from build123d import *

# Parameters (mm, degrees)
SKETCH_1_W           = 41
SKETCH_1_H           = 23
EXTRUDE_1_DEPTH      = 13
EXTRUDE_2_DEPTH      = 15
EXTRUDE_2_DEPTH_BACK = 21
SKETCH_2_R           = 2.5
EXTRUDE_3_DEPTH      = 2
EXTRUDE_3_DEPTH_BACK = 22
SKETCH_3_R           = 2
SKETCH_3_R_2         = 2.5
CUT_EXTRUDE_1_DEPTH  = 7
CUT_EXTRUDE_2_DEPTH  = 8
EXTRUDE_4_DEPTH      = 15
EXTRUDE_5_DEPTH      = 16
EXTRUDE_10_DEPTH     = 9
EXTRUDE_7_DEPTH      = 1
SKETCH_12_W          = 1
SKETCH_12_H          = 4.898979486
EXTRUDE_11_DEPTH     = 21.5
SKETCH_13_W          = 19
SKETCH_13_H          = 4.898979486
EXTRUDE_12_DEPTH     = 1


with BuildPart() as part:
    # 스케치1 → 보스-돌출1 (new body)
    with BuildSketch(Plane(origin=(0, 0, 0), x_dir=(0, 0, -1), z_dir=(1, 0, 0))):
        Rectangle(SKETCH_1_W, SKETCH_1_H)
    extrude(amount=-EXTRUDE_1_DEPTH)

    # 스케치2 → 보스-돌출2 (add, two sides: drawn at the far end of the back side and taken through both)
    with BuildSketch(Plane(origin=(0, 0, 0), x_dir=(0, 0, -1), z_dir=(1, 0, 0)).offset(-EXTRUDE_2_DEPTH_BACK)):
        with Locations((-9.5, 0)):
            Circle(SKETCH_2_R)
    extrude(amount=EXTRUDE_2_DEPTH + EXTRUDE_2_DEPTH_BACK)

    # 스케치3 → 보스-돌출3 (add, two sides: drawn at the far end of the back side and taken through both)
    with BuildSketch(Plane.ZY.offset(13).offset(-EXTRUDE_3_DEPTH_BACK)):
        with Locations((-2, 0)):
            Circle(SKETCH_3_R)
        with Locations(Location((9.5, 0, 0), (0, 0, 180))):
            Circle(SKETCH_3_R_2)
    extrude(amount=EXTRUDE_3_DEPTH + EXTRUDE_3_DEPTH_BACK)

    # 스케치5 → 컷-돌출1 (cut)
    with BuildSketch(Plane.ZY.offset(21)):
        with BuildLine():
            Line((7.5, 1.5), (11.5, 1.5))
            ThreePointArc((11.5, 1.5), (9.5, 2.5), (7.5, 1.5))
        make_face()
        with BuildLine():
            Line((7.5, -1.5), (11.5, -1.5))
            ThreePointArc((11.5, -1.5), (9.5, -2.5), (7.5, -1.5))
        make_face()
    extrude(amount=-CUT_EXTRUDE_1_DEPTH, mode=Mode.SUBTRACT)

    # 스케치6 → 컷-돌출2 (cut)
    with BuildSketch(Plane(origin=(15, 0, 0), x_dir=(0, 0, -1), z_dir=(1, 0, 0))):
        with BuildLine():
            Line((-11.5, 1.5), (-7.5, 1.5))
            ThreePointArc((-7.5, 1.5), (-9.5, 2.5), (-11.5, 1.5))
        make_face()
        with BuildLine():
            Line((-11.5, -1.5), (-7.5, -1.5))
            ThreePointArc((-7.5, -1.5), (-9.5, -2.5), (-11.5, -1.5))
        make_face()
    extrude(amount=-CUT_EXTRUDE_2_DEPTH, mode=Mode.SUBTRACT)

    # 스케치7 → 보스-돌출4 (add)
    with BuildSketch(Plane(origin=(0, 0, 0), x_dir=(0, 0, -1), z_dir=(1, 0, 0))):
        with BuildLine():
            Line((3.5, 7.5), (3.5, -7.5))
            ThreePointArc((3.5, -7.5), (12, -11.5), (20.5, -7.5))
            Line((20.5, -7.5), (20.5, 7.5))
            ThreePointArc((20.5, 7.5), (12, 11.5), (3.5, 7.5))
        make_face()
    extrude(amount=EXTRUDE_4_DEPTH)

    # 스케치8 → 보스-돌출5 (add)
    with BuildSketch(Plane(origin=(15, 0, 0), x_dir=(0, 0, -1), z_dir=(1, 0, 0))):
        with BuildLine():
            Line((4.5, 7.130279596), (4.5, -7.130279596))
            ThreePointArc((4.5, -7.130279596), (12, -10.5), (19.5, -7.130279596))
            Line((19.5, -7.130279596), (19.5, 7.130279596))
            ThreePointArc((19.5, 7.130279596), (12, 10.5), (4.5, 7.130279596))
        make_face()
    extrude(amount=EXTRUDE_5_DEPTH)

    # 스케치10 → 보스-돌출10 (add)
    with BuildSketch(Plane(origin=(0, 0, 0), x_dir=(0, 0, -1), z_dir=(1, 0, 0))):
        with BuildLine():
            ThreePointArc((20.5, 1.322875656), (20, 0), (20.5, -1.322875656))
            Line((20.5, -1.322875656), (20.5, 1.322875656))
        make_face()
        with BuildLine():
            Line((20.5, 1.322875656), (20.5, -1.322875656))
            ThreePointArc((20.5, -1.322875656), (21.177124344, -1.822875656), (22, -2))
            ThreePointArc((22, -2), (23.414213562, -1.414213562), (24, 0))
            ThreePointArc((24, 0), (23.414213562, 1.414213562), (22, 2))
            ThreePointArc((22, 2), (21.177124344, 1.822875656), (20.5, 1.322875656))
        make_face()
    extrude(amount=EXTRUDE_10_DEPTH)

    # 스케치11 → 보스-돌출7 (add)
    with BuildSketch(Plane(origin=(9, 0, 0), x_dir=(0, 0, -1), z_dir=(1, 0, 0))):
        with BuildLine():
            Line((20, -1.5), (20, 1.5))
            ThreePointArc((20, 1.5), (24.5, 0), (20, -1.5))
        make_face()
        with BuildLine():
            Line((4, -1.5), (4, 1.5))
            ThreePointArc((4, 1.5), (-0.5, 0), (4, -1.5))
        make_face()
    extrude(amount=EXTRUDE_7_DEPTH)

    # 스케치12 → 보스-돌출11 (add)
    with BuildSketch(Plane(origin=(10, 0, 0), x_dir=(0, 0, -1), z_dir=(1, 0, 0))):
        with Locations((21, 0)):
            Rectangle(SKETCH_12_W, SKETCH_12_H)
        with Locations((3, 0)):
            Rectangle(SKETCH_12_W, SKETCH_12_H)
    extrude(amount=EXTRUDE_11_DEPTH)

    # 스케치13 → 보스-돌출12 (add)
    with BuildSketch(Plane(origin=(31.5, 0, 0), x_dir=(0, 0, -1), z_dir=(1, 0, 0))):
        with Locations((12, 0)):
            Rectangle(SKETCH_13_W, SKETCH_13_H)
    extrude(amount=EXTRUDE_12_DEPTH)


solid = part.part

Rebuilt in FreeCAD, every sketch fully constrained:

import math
import FreeCAD as App
import Part
import Sketcher
from FreeCAD import Vector
Q = App.Units.Quantity

doc = App.newDocument("Part")
body = doc.addObject("PartDesign::Body", "Body")

sketch1 = body.newObject("Sketcher::SketchObject", "Sketch")
sketch1.AttachmentSupport = (doc.getObject("YZ_Plane"), [""])
sketch1.MapMode = "FlatFace"
sketch1.addGeometry(Part.LineSegment(Vector(11.5, 20.5, 0), Vector(-11.5, 20.5, 0)), False)
sketch1.addGeometry(Part.LineSegment(Vector(-11.5, 20.5, 0), Vector(-11.5, -20.5, 0)), False)
sketch1.addGeometry(Part.LineSegment(Vector(-11.5, -20.5, 0), Vector(11.5, -20.5, 0)), False)
sketch1.addGeometry(Part.LineSegment(Vector(11.5, -20.5, 0), Vector(11.5, 20.5, 0)), False)
sketch1.addConstraint(Sketcher.Constraint("Coincident", 0, 2, 1, 1))
sketch1.addConstraint(Sketcher.Constraint("Coincident", 1, 2, 2, 1))
sketch1.addConstraint(Sketcher.Constraint("Coincident", 2, 2, 3, 1))
sketch1.addConstraint(Sketcher.Constraint("Coincident", 3, 2, 0, 1))
sketch1.addConstraint(Sketcher.Constraint("Horizontal", 0))
sketch1.addConstraint(Sketcher.Constraint("Vertical", 1))
sketch1.addConstraint(Sketcher.Constraint("Horizontal", 2))
sketch1.addConstraint(Sketcher.Constraint("Vertical", 3))
sketch1.addConstraint(Sketcher.Constraint("Symmetric", 0, 2, 2, 2, -1, 1))
sketch1.addConstraint(Sketcher.Constraint("DistanceX", 0, 2, 0, 1, Q("23 mm")))
sketch1.addConstraint(Sketcher.Constraint("DistanceY", 1, 2, 1, 1, Q("41 mm")))
pad1 = body.newObject("PartDesign::Pad", "Pad")
pad1.Profile = sketch1
pad1.Length = 13
pad1.Reversed = True

sketch2 = body.newObject("Sketcher::SketchObject", "Sketch001")
sketch2.AttachmentSupport = (doc.getObject("YZ_Plane"), [""])
sketch2.MapMode = "FlatFace"
sketch2.addGeometry(Part.Circle(Vector(0, 9.5, 0), Vector(0, 0, 1), 2.5), False)
sketch2.addConstraint(Sketcher.Constraint("PointOnObject", 0, 3, -2))
sketch2.addConstraint(Sketcher.Constraint("Diameter", 0, Q("5 mm")))
sketch2.addConstraint(Sketcher.Constraint("DistanceY", -1, 1, 0, 3, Q("9.5 mm")))
pad2 = body.newObject("PartDesign::Pad", "Pad001")
pad2.Profile = sketch2
pad2.Type = "TwoLengths"
pad2.Length = 15
pad2.Length2 = 21

sketch3 = body.newObject("Sketcher::SketchObject", "Sketch002")
sketch3.AttachmentSupport = (doc.getObject("YZ_Plane"), [""])
sketch3.MapMode = "FlatFace"
sketch3.AttachmentOffset = App.Placement(Vector(0, 0, -13), App.Rotation())
sketch3.addGeometry(Part.Circle(Vector(0, -2, 0), Vector(0, 0, 1), 2), False)
sketch3.addGeometry(Part.Circle(Vector(0, 9.5, 0), Vector(0, 0, 1), 2.5), False)
sketch3.addConstraint(Sketcher.Constraint("PointOnObject", 0, 3, -2))
sketch3.addConstraint(Sketcher.Constraint("PointOnObject", 1, 3, -2))
sketch3.addConstraint(Sketcher.Constraint("Diameter", 0, Q("4 mm")))
sketch3.addConstraint(Sketcher.Constraint("Diameter", 1, Q("5 mm")))
sketch3.addConstraint(Sketcher.Constraint("DistanceY", 0, 3, -1, 1, Q("2 mm")))
sketch3.addConstraint(Sketcher.Constraint("DistanceY", -1, 1, 1, 3, Q("9.5 mm")))
pad3 = body.newObject("PartDesign::Pad", "Pad002")
pad3.Profile = sketch3
pad3.Type = "TwoLengths"
pad3.Length = 2
pad3.Length2 = 22
pad3.Reversed = True

sketch4 = body.newObject("Sketcher::SketchObject", "Sketch003")
sketch4.AttachmentSupport = (doc.getObject("YZ_Plane"), [""])
sketch4.MapMode = "FlatFace"
sketch4.AttachmentOffset = App.Placement(Vector(0, 0, -21), App.Rotation())
sketch4.addGeometry(Part.LineSegment(Vector(1.5, 7.5, 0), Vector(1.5, 11.5, 0)), False)
sketch4.addGeometry(Part.ArcOfCircle(Part.Circle(Vector(0, 9.5, 0), Vector(0, 0, 1), 2.5), math.radians(-53.130102), math.radians(53.130102)), False)
sketch4.addGeometry(Part.LineSegment(Vector(-1.5, 11.5, 0), Vector(-1.5, 7.5, 0)), False)
sketch4.addGeometry(Part.ArcOfCircle(Part.Circle(Vector(0, 9.5, 0), Vector(0, 0, 1), 2.5), math.radians(126.869898), math.radians(233.130102)), False)
sketch4.addConstraint(Sketcher.Constraint("Coincident", 0, 1, 1, 1))
sketch4.addConstraint(Sketcher.Constraint("Coincident", 1, 2, 0, 2))
sketch4.addConstraint(Sketcher.Constraint("Coincident", 2, 1, 3, 1))
sketch4.addConstraint(Sketcher.Constraint("Coincident", 3, 2, 2, 2))
sketch4.addConstraint(Sketcher.Constraint("Vertical", 0))
sketch4.addConstraint(Sketcher.Constraint("Vertical", 2))
sketch4.addConstraint(Sketcher.Constraint("Coincident", 3, 3, 1, 3))
sketch4.addConstraint(Sketcher.Constraint("Equal", 1, 3))
sketch4.addConstraint(Sketcher.Constraint("Symmetric", 1, 2, 2, 1, -2))
sketch4.addConstraint(Sketcher.Constraint("Radius", 1, Q("2.5 mm")))
sketch4.addConstraint(Sketcher.Constraint("DistanceY", 0, 1, 0, 2, Q("4 mm")))
sketch4.addConstraint(Sketcher.Constraint("DistanceY", -1, 1, 1, 3, Q("9.5 mm")))
pocket1 = body.newObject("PartDesign::Pocket", "Pocket")
pocket1.Profile = sketch4
pocket1.Length = 7
pocket1.Reversed = True

sketch5 = body.newObject("Sketcher::SketchObject", "Sketch004")
sketch5.AttachmentSupport = (doc.getObject("YZ_Plane"), [""])
sketch5.MapMode = "FlatFace"
sketch5.AttachmentOffset = App.Placement(Vector(0, 0, 15), App.Rotation())
sketch5.addGeometry(Part.LineSegment(Vector(1.5, 11.5, 0), Vector(1.5, 7.5, 0)), False)
sketch5.addGeometry(Part.ArcOfCircle(Part.Circle(Vector(0, 9.5, 0), Vector(0, 0, 1), 2.5), math.radians(-53.130102), math.radians(53.130102)), False)
sketch5.addGeometry(Part.LineSegment(Vector(-1.5, 7.5, 0), Vector(-1.5, 11.5, 0)), False)
sketch5.addGeometry(Part.ArcOfCircle(Part.Circle(Vector(0, 9.5, 0), Vector(0, 0, 1), 2.5), math.radians(126.869898), math.radians(233.130102)), False)
sketch5.addConstraint(Sketcher.Constraint("Coincident", 0, 1, 1, 2))
sketch5.addConstraint(Sketcher.Constraint("Coincident", 1, 1, 0, 2))
sketch5.addConstraint(Sketcher.Constraint("Coincident", 2, 1, 3, 2))
sketch5.addConstraint(Sketcher.Constraint("Coincident", 3, 1, 2, 2))
sketch5.addConstraint(Sketcher.Constraint("Vertical", 0))
sketch5.addConstraint(Sketcher.Constraint("Vertical", 2))
sketch5.addConstraint(Sketcher.Constraint("Coincident", 3, 3, 1, 3))
sketch5.addConstraint(Sketcher.Constraint("Equal", 1, 3))
sketch5.addConstraint(Sketcher.Constraint("Symmetric", 1, 1, 2, 1, -2))
sketch5.addConstraint(Sketcher.Constraint("Radius", 1, Q("2.5 mm")))
sketch5.addConstraint(Sketcher.Constraint("DistanceY", 0, 2, 0, 1, Q("4 mm")))
sketch5.addConstraint(Sketcher.Constraint("DistanceY", -1, 1, 1, 3, Q("9.5 mm")))
pocket2 = body.newObject("PartDesign::Pocket", "Pocket001")
pocket2.Profile = sketch5
pocket2.Length = 8

sketch6 = body.newObject("Sketcher::SketchObject", "Sketch005")
sketch6.AttachmentSupport = (doc.getObject("YZ_Plane"), [""])
sketch6.MapMode = "FlatFace"
sketch6.addGeometry(Part.LineSegment(Vector(7.5, -3.5, 0), Vector(-7.5, -3.5, 0)), False)
sketch6.addGeometry(Part.ArcOfCircle(Part.Circle(Vector(-0.46875, -12, 0), Vector(0, 0, 1), 11.03125), math.radians(129.597753), math.radians(230.402247)), False)
sketch6.addGeometry(Part.LineSegment(Vector(-7.5, -20.5, 0), Vector(7.5, -20.5, 0)), False)
sketch6.addGeometry(Part.ArcOfCircle(Part.Circle(Vector(0.46875, -12, 0), Vector(0, 0, 1), 11.03125), math.radians(-50.402247), math.radians(50.402247)), False)
sketch6.addConstraint(Sketcher.Constraint("Coincident", 0, 2, 1, 1))
sketch6.addConstraint(Sketcher.Constraint("Coincident", 1, 2, 2, 1))
sketch6.addConstraint(Sketcher.Constraint("Coincident", 2, 2, 3, 1))
sketch6.addConstraint(Sketcher.Constraint("Coincident", 3, 2, 0, 1))
sketch6.addConstraint(Sketcher.Constraint("Horizontal", 0))
sketch6.addConstraint(Sketcher.Constraint("Horizontal", 2))
sketch6.addConstraint(Sketcher.Constraint("Equal", 1, 3))
sketch6.addConstraint(Sketcher.Constraint("Symmetric", 1, 3, 3, 3, -2))
sketch6.addConstraint(Sketcher.Constraint("Vertical", 0, 2, 1, 2))
sketch6.addConstraint(Sketcher.Constraint("DistanceX", 0, 2, 0, 1, Q("15 mm")))
sketch6.addConstraint(Sketcher.Constraint("DistanceY", 1, 3, -1, 1, Q("12 mm")))
sketch6.addConstraint(Sketcher.Constraint("DistanceY", 1, 2, 0, 2, Q("17 mm")))
sketch6.addConstraint(Sketcher.Constraint("Radius", 1, Q("11.03125 mm")))
pad4 = body.newObject("PartDesign::Pad", "Pad003")
pad4.Profile = sketch6
pad4.Length = 15

sketch7 = body.newObject("Sketcher::SketchObject", "Sketch006")
sketch7.AttachmentSupport = (doc.getObject("YZ_Plane"), [""])
sketch7.MapMode = "FlatFace"
sketch7.AttachmentOffset = App.Placement(Vector(0, 0, 15), App.Rotation())
sketch7.addGeometry(Part.LineSegment(Vector(7.13028, -4.5, 0), Vector(-7.13028, -4.5, 0)), False)
sketch7.addGeometry(Part.ArcOfCircle(Part.Circle(Vector(-0.46875, -12, 0), Vector(0, 0, 1), 10.03125), math.radians(131.611609), math.radians(228.388391)), False)
sketch7.addGeometry(Part.LineSegment(Vector(-7.13028, -19.5, 0), Vector(7.13028, -19.5, 0)), False)
sketch7.addGeometry(Part.ArcOfCircle(Part.Circle(Vector(0.46875, -12, 0), Vector(0, 0, 1), 10.03125), math.radians(-48.388391), math.radians(48.388391)), False)
sketch7.addConstraint(Sketcher.Constraint("Coincident", 0, 2, 1, 1))
sketch7.addConstraint(Sketcher.Constraint("Coincident", 1, 2, 2, 1))
sketch7.addConstraint(Sketcher.Constraint("Coincident", 2, 2, 3, 1))
sketch7.addConstraint(Sketcher.Constraint("Coincident", 3, 2, 0, 1))
sketch7.addConstraint(Sketcher.Constraint("Horizontal", 0))
sketch7.addConstraint(Sketcher.Constraint("Horizontal", 2))
sketch7.addConstraint(Sketcher.Constraint("Equal", 1, 3))
sketch7.addConstraint(Sketcher.Constraint("Symmetric", 1, 3, 3, 3, -2))
sketch7.addConstraint(Sketcher.Constraint("Vertical", 0, 2, 1, 2))
sketch7.addConstraint(Sketcher.Constraint("DistanceY", 1, 3, -1, 1, Q("12 mm")))
sketch7.addConstraint(Sketcher.Constraint("DistanceY", 1, 2, 0, 2, Q("15 mm")))
sketch7.addConstraint(Sketcher.Constraint("Radius", 1, Q("10.03125 mm")))
sketch7.addConstraint(Sketcher.Constraint("DistanceX", 0, 2, 0, 1, Q("14.260559 mm")))
pad5 = body.newObject("PartDesign::Pad", "Pad004")
pad5.Profile = sketch7
pad5.Length = 16

sketch8 = body.newObject("Sketcher::SketchObject", "Sketch007")
sketch8.AttachmentSupport = (doc.getObject("YZ_Plane"), [""])
sketch8.MapMode = "FlatFace"
sketch8.addGeometry(Part.ArcOfCircle(Part.Circle(Vector(0, -22, 0), Vector(0, 0, 1), 2), math.radians(48.590378), math.radians(131.409622)), False)
sketch8.addGeometry(Part.ArcOfCircle(Part.Circle(Vector(0, -22, 0), Vector(0, 0, 1), 2), math.radians(131.409622), math.radians(180)), False)
sketch8.addGeometry(Part.ArcOfCircle(Part.Circle(Vector(0, -22, 0), Vector(0, 0, 1), 2), math.radians(-180), math.radians(-90)), False)
sketch8.addGeometry(Part.ArcOfCircle(Part.Circle(Vector(0, -22, 0), Vector(0, 0, 1), 2), math.radians(-90), math.radians(0)), False)
sketch8.addGeometry(Part.ArcOfCircle(Part.Circle(Vector(0, -22, 0), Vector(0, 0, 1), 2), math.radians(0), math.radians(48.590378)), False)
sketch8.addConstraint(Sketcher.Constraint("Tangent", 0, 2, 1, 1))
sketch8.addConstraint(Sketcher.Constraint("Tangent", 1, 2, 2, 1))
sketch8.addConstraint(Sketcher.Constraint("Tangent", 2, 2, 3, 1))
sketch8.addConstraint(Sketcher.Constraint("Tangent", 3, 2, 4, 1))
sketch8.addConstraint(Sketcher.Constraint("Tangent", 4, 2, 0, 1))
sketch8.addConstraint(Sketcher.Constraint("Coincident", 2, 3, 0, 3))
sketch8.addConstraint(Sketcher.Constraint("Symmetric", 1, 2, 3, 2, -2))
sketch8.addConstraint(Sketcher.Constraint("PointOnObject", 2, 2, -2))
sketch8.addConstraint(Sketcher.Constraint("Horizontal", 4, 3, 1, 2))
sketch8.addConstraint(Sketcher.Constraint("Horizontal", 0, 2, 4, 2))
sketch8.addConstraint(Sketcher.Constraint("Radius", 0, Q("2 mm")))
sketch8.addConstraint(Sketcher.Constraint("DistanceY", 0, 3, -1, 1, Q("22 mm")))
sketch8.addConstraint(Sketcher.Constraint("DistanceY", 0, 2, -1, 1, Q("20.5 mm")))
pad6 = body.newObject("PartDesign::Pad", "Pad005")
pad6.Profile = sketch8
pad6.Length = 9

sketch9 = body.newObject("Sketcher::SketchObject", "Sketch008")
sketch9.AttachmentSupport = (doc.getObject("YZ_Plane"), [""])
sketch9.MapMode = "FlatFace"
sketch9.AttachmentOffset = App.Placement(Vector(0, 0, 9), App.Rotation())
sketch9.addGeometry(Part.LineSegment(Vector(1.5, -20, 0), Vector(-1.5, -20, 0)), False)
sketch9.addGeometry(Part.ArcOfCircle(Part.Circle(Vector(0, -22, 0), Vector(0, 0, 1), 2.5), math.radians(126.869898), math.radians(413.130102)), False)
sketch9.addGeometry(Part.LineSegment(Vector(-1.5, -4, 0), Vector(1.5, -4, 0)), False)
sketch9.addGeometry(Part.ArcOfCircle(Part.Circle(Vector(0, -2, 0), Vector(0, 0, 1), 2.5), math.radians(-53.130102), math.radians(233.130102)), False)
sketch9.addConstraint(Sketcher.Constraint("Coincident", 0, 1, 1, 2))
sketch9.addConstraint(Sketcher.Constraint("Coincident", 1, 1, 0, 2))
sketch9.addConstraint(Sketcher.Constraint("Coincident", 2, 1, 3, 2))
sketch9.addConstraint(Sketcher.Constraint("Coincident", 3, 1, 2, 2))
sketch9.addConstraint(Sketcher.Constraint("Horizontal", 0))
sketch9.addConstraint(Sketcher.Constraint("Horizontal", 2))
sketch9.addConstraint(Sketcher.Constraint("Equal", 1, 3))
sketch9.addConstraint(Sketcher.Constraint("PointOnObject", 1, 3, -2))
sketch9.addConstraint(Sketcher.Constraint("PointOnObject", 3, 3, -2))
sketch9.addConstraint(Sketcher.Constraint("Vertical", 1, 1, 2, 1))
sketch9.addConstraint(Sketcher.Constraint("Radius", 1, Q("2.5 mm")))
sketch9.addConstraint(Sketcher.Constraint("DistanceX", 0, 2, 0, 1, Q("3 mm")))
sketch9.addConstraint(Sketcher.Constraint("DistanceY", 1, 3, -1, 1, Q("22 mm")))
sketch9.addConstraint(Sketcher.Constraint("DistanceY", 3, 3, -1, 1, Q("2 mm")))
pad7 = body.newObject("PartDesign::Pad", "Pad006")
pad7.Profile = sketch9
pad7.Length = 1

sketch10 = body.newObject("Sketcher::SketchObject", "Sketch009")
sketch10.AttachmentSupport = (doc.getObject("YZ_Plane"), [""])
sketch10.MapMode = "FlatFace"
sketch10.AttachmentOffset = App.Placement(Vector(0, 0, 10), App.Rotation())
sketch10.addGeometry(Part.LineSegment(Vector(2.44949, -20.5, 0), Vector(-2.44949, -20.5, 0)), False)
sketch10.addGeometry(Part.LineSegment(Vector(-2.44949, -20.5, 0), Vector(-2.44949, -21.5, 0)), False)
sketch10.addGeometry(Part.LineSegment(Vector(-2.44949, -21.5, 0), Vector(2.44949, -21.5, 0)), False)
sketch10.addGeometry(Part.LineSegment(Vector(2.44949, -21.5, 0), Vector(2.44949, -20.5, 0)), False)
sketch10.addGeometry(Part.LineSegment(Vector(2.44949, -2.5, 0), Vector(-2.44949, -2.5, 0)), False)
sketch10.addGeometry(Part.LineSegment(Vector(-2.44949, -2.5, 0), Vector(-2.44949, -3.5, 0)), False)
sketch10.addGeometry(Part.LineSegment(Vector(-2.44949, -3.5, 0), Vector(2.44949, -3.5, 0)), False)
sketch10.addGeometry(Part.LineSegment(Vector(2.44949, -3.5, 0), Vector(2.44949, -2.5, 0)), False)
sketch10.addConstraint(Sketcher.Constraint("Coincident", 0, 2, 1, 1))
sketch10.addConstraint(Sketcher.Constraint("Coincident", 1, 2, 2, 1))
sketch10.addConstraint(Sketcher.Constraint("Coincident", 2, 2, 3, 1))
sketch10.addConstraint(Sketcher.Constraint("Coincident", 3, 2, 0, 1))
sketch10.addConstraint(Sketcher.Constraint("Coincident", 4, 2, 5, 1))
sketch10.addConstraint(Sketcher.Constraint("Coincident", 5, 2, 6, 1))
sketch10.addConstraint(Sketcher.Constraint("Coincident", 6, 2, 7, 1))
sketch10.addConstraint(Sketcher.Constraint("Coincident", 7, 2, 4, 1))
sketch10.addConstraint(Sketcher.Constraint("Horizontal", 0))
sketch10.addConstraint(Sketcher.Constraint("Vertical", 1))
sketch10.addConstraint(Sketcher.Constraint("Horizontal", 2))
sketch10.addConstraint(Sketcher.Constraint("Vertical", 3))
sketch10.addConstraint(Sketcher.Constraint("Horizontal", 4))
sketch10.addConstraint(Sketcher.Constraint("Vertical", 5))
sketch10.addConstraint(Sketcher.Constraint("Horizontal", 6))
sketch10.addConstraint(Sketcher.Constraint("Vertical", 7))
sketch10.addConstraint(Sketcher.Constraint("Vertical", 1, 2, 4, 2))
sketch10.addConstraint(Sketcher.Constraint("Vertical", 3, 2, 6, 2))
sketch10.addConstraint(Sketcher.Constraint("Equal", 3, 5))
sketch10.addConstraint(Sketcher.Constraint("DistanceY", 1, 2, 1, 1, Q("1 mm")))
sketch10.addConstraint(Sketcher.Constraint("DistanceY", 0, 2, 4, 2, Q("18 mm")))
sketch10.addConstraint(Sketcher.Constraint("DistanceY", 0, 2, -1, 1, Q("20.5 mm")))
sketch10.addConstraint(Sketcher.Constraint("DistanceX", 0, 2, 0, 1, Q("4.898979 mm")))
sketch10.addConstraint(Sketcher.Constraint("DistanceX", 0, 2, -1, 1, Q("2.44949 mm")))
pad8 = body.newObject("PartDesign::Pad", "Pad007")
pad8.Profile = sketch10
pad8.Length = 21.5

sketch11 = body.newObject("Sketcher::SketchObject", "Sketch010")
sketch11.AttachmentSupport = (doc.getObject("YZ_Plane"), [""])
sketch11.MapMode = "FlatFace"
sketch11.AttachmentOffset = App.Placement(Vector(0, 0, 31.5), App.Rotation())
sketch11.addGeometry(Part.LineSegment(Vector(2.44949, -2.5, 0), Vector(-2.44949, -2.5, 0)), False)
sketch11.addGeometry(Part.LineSegment(Vector(-2.44949, -2.5, 0), Vector(-2.44949, -21.5, 0)), False)
sketch11.addGeometry(Part.LineSegment(Vector(-2.44949, -21.5, 0), Vector(2.44949, -21.5, 0)), False)
sketch11.addGeometry(Part.LineSegment(Vector(2.44949, -21.5, 0), Vector(2.44949, -2.5, 0)), False)
sketch11.addConstraint(Sketcher.Constraint("Coincident", 0, 2, 1, 1))
sketch11.addConstraint(Sketcher.Constraint("Coincident", 1, 2, 2, 1))
sketch11.addConstraint(Sketcher.Constraint("Coincident", 2, 2, 3, 1))
sketch11.addConstraint(Sketcher.Constraint("Coincident", 3, 2, 0, 1))
sketch11.addConstraint(Sketcher.Constraint("Horizontal", 0))
sketch11.addConstraint(Sketcher.Constraint("Vertical", 1))
sketch11.addConstraint(Sketcher.Constraint("Horizontal", 2))
sketch11.addConstraint(Sketcher.Constraint("Vertical", 3))
sketch11.addConstraint(Sketcher.Constraint("DistanceY", 1, 2, 1, 1, Q("19 mm")))
sketch11.addConstraint(Sketcher.Constraint("DistanceY", 0, 2, -1, 1, Q("2.5 mm")))
sketch11.addConstraint(Sketcher.Constraint("DistanceX", 0, 2, 0, 1, Q("4.898979 mm")))
sketch11.addConstraint(Sketcher.Constraint("DistanceX", 0, 2, -1, 1, Q("2.44949 mm")))
pad9 = body.newObject("PartDesign::Pad", "Pad008")
pad9.Profile = sketch11
pad9.Length = 1

doc.recompute()
